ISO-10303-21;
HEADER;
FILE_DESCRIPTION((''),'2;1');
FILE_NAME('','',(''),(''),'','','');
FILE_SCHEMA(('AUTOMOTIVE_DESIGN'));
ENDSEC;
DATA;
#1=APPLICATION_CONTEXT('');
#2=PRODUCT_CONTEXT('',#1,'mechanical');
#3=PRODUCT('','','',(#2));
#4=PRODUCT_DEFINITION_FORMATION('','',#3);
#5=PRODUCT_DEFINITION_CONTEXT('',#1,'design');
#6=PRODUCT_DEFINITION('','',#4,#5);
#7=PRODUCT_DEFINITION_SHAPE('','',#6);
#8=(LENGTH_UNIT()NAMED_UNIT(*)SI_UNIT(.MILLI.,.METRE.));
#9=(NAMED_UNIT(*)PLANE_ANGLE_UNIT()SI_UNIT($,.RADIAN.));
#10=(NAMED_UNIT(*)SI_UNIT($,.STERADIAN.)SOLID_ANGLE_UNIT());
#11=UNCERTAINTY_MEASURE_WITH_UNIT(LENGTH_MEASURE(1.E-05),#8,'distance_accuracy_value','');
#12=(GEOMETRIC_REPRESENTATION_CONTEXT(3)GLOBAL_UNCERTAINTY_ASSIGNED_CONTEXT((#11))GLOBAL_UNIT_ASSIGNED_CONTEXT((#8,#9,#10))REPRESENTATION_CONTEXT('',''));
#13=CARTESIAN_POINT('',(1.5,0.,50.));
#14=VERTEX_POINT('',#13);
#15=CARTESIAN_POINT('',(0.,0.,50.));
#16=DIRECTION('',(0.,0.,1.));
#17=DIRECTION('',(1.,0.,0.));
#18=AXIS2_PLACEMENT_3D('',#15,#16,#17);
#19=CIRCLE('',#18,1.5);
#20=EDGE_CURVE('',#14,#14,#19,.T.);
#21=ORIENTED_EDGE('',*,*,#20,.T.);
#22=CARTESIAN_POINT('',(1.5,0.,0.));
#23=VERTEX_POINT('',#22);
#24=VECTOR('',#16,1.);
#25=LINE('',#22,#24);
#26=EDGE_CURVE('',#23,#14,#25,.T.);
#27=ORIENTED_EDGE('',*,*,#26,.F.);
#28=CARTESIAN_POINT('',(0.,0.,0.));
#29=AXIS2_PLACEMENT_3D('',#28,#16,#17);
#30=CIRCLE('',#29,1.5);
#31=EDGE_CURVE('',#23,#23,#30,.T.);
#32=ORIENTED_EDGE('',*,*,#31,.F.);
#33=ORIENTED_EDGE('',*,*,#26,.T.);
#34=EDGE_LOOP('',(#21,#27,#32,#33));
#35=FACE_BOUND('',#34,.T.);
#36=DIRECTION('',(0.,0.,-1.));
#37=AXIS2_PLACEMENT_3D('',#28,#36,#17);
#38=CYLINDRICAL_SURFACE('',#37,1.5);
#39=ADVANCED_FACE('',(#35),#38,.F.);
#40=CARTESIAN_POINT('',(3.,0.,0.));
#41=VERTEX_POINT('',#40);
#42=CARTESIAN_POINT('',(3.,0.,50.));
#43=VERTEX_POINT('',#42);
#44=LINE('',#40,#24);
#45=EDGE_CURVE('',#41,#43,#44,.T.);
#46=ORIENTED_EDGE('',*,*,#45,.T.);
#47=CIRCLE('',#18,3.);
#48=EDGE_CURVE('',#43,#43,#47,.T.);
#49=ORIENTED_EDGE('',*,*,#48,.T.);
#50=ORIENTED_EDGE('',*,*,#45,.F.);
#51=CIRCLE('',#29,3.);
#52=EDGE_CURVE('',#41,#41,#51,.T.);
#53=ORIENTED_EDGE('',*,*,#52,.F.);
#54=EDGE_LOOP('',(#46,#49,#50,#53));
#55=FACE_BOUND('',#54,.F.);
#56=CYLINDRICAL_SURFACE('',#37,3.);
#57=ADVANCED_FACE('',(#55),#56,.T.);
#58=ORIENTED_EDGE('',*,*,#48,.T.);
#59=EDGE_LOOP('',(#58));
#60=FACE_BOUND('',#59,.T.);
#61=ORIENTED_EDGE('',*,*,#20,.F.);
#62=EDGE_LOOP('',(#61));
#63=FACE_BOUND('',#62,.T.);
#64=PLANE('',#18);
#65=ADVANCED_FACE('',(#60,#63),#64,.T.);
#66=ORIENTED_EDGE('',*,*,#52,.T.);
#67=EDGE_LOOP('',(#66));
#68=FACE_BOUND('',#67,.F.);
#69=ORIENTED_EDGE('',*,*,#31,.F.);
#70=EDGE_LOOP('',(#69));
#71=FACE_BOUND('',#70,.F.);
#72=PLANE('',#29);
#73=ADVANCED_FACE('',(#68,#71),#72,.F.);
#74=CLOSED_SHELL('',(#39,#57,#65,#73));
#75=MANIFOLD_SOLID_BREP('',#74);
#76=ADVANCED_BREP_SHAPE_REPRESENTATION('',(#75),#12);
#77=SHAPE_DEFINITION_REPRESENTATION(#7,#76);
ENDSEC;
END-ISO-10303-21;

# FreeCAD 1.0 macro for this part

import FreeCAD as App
import Part
import Sketcher
Q = App.Units.Quantity

doc = App.newDocument("Part")
body = doc.addObject("PartDesign::Body", "Body")

sketch1 = body.newObject("Sketcher::SketchObject", "Sketch")
sketch1.AttachmentSupport = (doc.getObject("XY_Plane"), [""])
sketch1.MapMode = "FlatFace"
sketch1.addGeometry([
    Part.Circle(App.Vector(0, 0, 0), App.Vector(0, 0, 1), 3),
    Part.Circle(App.Vector(0, 0, 0), App.Vector(0, 0, 1), 1.5),
], False)
sketch1.addConstraint([
    Sketcher.Constraint("Coincident", 0, 3, -1, 1),
    Sketcher.Constraint("Coincident", 1, 3, -1, 1),
    Sketcher.Constraint("Diameter", 0, Q("6 mm")),
    Sketcher.Constraint("Diameter", 1, Q("3 mm")),
])
pad1 = body.newObject("PartDesign::Pad", "Pad")
pad1.Profile = sketch1
pad1.Length = 50

doc.recompute()
